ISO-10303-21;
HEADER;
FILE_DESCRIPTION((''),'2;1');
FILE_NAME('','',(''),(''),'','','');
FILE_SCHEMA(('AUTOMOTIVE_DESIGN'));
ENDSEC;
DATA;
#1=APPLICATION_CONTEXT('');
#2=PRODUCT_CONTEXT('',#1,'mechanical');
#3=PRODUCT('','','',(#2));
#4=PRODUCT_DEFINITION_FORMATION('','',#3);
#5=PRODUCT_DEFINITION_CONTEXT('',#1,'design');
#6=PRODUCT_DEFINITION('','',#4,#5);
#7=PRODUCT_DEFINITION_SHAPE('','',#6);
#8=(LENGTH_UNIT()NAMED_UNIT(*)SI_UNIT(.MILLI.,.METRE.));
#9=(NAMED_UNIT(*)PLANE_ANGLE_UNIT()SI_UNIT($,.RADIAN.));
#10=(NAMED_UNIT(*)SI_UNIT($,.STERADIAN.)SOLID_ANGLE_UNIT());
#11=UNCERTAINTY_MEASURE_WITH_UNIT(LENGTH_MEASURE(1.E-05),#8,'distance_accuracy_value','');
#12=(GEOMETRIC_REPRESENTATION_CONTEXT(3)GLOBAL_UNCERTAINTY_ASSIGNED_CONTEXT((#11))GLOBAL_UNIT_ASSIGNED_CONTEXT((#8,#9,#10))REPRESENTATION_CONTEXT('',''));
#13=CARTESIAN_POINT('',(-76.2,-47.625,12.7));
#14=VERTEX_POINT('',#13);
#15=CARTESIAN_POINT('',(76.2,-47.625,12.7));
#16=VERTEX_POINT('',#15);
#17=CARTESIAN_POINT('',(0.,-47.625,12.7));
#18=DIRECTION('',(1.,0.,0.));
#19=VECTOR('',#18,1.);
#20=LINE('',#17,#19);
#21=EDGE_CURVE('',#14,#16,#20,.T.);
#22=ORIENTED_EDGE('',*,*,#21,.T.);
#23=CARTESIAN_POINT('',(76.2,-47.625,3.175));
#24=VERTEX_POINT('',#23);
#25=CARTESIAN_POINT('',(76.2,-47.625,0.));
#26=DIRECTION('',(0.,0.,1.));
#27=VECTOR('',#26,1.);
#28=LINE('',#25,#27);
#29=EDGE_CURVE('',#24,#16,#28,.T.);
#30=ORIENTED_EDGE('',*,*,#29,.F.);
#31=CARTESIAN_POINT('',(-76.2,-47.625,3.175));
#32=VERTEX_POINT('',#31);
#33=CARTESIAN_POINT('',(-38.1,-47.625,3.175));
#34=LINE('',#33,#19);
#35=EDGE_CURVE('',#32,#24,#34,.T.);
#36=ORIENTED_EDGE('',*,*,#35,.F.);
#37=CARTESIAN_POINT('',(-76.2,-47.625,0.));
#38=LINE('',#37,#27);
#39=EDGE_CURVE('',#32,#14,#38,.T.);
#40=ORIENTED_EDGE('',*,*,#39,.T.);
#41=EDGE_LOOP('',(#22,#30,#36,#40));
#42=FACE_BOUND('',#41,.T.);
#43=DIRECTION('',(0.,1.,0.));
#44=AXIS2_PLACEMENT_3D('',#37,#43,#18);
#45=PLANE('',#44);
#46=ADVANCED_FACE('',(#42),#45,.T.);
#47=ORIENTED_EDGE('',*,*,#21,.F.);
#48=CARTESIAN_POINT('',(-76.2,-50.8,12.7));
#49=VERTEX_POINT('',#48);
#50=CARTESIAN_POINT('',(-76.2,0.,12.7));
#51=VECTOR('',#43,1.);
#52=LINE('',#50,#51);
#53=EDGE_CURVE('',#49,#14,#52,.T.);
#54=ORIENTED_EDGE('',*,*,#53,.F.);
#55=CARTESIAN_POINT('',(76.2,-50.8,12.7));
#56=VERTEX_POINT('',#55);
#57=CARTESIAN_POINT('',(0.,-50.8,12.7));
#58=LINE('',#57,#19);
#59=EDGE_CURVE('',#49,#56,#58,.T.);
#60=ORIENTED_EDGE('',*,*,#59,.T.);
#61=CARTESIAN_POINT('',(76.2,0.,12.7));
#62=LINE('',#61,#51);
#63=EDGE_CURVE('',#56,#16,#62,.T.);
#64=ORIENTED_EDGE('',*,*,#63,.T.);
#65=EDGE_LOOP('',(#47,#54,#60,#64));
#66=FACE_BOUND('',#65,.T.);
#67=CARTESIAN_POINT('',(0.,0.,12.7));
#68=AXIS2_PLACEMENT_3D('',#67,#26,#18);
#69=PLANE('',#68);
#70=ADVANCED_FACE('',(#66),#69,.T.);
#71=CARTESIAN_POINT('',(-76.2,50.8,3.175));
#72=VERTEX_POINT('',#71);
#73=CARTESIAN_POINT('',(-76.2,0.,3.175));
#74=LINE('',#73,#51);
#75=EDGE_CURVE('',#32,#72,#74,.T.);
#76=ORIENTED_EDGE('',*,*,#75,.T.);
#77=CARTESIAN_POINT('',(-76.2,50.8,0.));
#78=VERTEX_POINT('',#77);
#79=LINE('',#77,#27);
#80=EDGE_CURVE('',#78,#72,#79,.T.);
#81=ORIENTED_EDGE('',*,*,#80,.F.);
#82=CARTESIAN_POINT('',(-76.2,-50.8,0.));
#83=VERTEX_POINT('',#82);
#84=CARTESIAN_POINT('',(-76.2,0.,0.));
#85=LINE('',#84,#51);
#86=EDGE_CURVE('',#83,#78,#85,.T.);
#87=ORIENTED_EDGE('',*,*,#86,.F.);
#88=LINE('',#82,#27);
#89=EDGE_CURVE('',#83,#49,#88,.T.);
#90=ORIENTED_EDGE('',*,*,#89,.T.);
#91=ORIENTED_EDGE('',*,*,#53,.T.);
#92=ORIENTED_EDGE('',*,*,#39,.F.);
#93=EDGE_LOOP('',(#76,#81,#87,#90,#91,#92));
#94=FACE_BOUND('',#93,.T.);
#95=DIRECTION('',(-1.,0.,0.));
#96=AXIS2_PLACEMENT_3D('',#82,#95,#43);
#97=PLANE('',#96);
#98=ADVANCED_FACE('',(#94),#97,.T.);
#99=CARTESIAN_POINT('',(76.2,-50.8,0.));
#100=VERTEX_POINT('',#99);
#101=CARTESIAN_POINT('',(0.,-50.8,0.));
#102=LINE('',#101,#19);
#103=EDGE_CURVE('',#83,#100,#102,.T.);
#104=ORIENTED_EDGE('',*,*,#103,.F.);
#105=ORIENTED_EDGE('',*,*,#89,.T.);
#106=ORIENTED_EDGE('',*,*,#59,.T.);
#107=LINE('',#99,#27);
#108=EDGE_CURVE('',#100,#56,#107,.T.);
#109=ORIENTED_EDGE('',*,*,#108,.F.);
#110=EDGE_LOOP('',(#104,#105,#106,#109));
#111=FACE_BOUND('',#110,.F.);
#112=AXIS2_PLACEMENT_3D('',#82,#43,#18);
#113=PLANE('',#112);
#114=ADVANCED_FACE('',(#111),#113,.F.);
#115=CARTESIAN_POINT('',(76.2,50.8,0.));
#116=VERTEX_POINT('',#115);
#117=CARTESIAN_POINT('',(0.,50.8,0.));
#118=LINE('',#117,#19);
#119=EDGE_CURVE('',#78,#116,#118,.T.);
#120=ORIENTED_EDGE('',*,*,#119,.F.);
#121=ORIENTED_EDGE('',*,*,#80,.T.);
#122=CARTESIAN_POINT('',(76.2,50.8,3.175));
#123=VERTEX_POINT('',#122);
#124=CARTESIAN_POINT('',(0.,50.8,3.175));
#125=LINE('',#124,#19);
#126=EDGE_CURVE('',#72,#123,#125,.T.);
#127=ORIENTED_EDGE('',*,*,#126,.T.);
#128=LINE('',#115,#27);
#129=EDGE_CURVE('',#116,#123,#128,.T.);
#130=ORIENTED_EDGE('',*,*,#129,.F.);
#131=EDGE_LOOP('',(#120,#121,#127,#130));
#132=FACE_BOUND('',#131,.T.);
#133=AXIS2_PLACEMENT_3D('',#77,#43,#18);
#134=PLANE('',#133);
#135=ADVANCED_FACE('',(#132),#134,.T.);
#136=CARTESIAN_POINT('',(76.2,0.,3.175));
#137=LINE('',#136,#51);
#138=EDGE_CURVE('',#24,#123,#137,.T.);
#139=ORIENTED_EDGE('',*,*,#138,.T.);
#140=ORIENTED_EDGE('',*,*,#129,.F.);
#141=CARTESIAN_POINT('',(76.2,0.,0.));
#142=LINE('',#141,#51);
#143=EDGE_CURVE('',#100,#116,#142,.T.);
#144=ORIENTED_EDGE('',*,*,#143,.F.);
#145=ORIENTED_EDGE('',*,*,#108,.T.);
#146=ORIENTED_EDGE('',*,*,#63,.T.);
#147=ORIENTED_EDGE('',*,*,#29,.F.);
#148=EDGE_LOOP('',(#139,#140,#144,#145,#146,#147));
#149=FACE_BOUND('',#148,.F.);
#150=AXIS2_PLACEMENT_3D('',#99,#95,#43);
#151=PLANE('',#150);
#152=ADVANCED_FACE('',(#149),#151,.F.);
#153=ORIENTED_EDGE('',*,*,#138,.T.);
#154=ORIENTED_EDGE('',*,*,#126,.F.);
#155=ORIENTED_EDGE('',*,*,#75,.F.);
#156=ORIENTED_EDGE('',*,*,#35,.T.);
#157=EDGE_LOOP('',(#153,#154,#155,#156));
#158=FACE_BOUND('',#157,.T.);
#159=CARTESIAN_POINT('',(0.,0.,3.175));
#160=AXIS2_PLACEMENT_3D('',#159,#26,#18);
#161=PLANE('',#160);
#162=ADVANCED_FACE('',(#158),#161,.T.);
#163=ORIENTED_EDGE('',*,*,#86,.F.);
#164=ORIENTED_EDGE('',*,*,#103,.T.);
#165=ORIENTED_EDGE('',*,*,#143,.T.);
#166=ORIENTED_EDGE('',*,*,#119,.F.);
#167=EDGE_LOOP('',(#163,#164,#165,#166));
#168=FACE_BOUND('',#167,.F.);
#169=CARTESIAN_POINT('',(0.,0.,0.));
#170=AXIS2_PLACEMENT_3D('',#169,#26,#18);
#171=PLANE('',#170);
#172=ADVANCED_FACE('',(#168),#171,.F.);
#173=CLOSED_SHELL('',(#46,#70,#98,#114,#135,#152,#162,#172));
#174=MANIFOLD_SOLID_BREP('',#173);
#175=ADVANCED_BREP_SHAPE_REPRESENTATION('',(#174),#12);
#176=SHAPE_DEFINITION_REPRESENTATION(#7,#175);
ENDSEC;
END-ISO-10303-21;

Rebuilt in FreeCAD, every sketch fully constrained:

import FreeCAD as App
import Part
import Sketcher
Q = App.Units.Quantity


def faces_at(feature, points):
    """Names of the faces that lie closest to the given points."""
    faces = feature.Shape.Faces
    near = lambda p: min(range(len(faces)), key=lambda i: faces[i].distToShape(Part.Vertex(*p))[0])
    return sorted({f"Face{near(p) + 1}" for p in points})


def add_polygon(sketch, points):
    """Adds a closed chain of lines whose ends are joined by coincident constraints."""
    first, n = sketch.GeometryCount, len(points)
    for a, b in zip(points, points[1:] + points[:1]):
        sketch.addGeometry(Part.LineSegment(App.Vector(*a, 0), App.Vector(*b, 0)), False)
    for i in range(n):
        sketch.addConstraint(Sketcher.Constraint("Coincident", first + i, 2, first + (i + 1) % n, 1))

doc = App.newDocument("Part")
body = doc.addObject("PartDesign::Body", "Body")

# Sketch on XY plane
sketch1 = body.newObject("Sketcher::SketchObject", "Sketch")
sketch1.AttachmentSupport = (doc.getObject("XY_Plane"), [""])
sketch1.MapMode = "FlatFace"
add_polygon(sketch1, [(-76.2, 50.8), (-76.2, -50.8), (76.2, -50.8), (76.2, 50.8)])  # lines 0-3
sketch1.addConstraint(Sketcher.Constraint("Vertical", 0))
sketch1.addConstraint(Sketcher.Constraint("Horizontal", 1))
sketch1.addConstraint(Sketcher.Constraint("Vertical", 2))
sketch1.addConstraint(Sketcher.Constraint("Horizontal", 3))
sketch1.addConstraint(Sketcher.Constraint("Symmetric", 0, 2, 2, 2, -1, 1))
sketch1.addConstraint(Sketcher.Constraint("DistanceX", 1, 1, 1, 2, Q("6 in")))
sketch1.addConstraint(Sketcher.Constraint("DistanceY", 0, 2, 0, 1, Q("4 in")))
pad1 = body.newObject("PartDesign::Pad", "Pad")
pad1.Profile = sketch1
pad1.Length = Q("0.5 in")
doc.recompute()

thickness = body.newObject("PartDesign::Thickness", "Thickness")
thickness.Base = (pad1, faces_at(pad1, [
    (-76.2, 0, 6.35),
    (0, 0, 12.7),
    (76.2, 0, 6.35),
    (0, 50.8, 6.35),
]))
thickness.Value = Q("0.125 in")
thickness.Reversed = True
thickness.Join = "Arc"

doc.recompute()
